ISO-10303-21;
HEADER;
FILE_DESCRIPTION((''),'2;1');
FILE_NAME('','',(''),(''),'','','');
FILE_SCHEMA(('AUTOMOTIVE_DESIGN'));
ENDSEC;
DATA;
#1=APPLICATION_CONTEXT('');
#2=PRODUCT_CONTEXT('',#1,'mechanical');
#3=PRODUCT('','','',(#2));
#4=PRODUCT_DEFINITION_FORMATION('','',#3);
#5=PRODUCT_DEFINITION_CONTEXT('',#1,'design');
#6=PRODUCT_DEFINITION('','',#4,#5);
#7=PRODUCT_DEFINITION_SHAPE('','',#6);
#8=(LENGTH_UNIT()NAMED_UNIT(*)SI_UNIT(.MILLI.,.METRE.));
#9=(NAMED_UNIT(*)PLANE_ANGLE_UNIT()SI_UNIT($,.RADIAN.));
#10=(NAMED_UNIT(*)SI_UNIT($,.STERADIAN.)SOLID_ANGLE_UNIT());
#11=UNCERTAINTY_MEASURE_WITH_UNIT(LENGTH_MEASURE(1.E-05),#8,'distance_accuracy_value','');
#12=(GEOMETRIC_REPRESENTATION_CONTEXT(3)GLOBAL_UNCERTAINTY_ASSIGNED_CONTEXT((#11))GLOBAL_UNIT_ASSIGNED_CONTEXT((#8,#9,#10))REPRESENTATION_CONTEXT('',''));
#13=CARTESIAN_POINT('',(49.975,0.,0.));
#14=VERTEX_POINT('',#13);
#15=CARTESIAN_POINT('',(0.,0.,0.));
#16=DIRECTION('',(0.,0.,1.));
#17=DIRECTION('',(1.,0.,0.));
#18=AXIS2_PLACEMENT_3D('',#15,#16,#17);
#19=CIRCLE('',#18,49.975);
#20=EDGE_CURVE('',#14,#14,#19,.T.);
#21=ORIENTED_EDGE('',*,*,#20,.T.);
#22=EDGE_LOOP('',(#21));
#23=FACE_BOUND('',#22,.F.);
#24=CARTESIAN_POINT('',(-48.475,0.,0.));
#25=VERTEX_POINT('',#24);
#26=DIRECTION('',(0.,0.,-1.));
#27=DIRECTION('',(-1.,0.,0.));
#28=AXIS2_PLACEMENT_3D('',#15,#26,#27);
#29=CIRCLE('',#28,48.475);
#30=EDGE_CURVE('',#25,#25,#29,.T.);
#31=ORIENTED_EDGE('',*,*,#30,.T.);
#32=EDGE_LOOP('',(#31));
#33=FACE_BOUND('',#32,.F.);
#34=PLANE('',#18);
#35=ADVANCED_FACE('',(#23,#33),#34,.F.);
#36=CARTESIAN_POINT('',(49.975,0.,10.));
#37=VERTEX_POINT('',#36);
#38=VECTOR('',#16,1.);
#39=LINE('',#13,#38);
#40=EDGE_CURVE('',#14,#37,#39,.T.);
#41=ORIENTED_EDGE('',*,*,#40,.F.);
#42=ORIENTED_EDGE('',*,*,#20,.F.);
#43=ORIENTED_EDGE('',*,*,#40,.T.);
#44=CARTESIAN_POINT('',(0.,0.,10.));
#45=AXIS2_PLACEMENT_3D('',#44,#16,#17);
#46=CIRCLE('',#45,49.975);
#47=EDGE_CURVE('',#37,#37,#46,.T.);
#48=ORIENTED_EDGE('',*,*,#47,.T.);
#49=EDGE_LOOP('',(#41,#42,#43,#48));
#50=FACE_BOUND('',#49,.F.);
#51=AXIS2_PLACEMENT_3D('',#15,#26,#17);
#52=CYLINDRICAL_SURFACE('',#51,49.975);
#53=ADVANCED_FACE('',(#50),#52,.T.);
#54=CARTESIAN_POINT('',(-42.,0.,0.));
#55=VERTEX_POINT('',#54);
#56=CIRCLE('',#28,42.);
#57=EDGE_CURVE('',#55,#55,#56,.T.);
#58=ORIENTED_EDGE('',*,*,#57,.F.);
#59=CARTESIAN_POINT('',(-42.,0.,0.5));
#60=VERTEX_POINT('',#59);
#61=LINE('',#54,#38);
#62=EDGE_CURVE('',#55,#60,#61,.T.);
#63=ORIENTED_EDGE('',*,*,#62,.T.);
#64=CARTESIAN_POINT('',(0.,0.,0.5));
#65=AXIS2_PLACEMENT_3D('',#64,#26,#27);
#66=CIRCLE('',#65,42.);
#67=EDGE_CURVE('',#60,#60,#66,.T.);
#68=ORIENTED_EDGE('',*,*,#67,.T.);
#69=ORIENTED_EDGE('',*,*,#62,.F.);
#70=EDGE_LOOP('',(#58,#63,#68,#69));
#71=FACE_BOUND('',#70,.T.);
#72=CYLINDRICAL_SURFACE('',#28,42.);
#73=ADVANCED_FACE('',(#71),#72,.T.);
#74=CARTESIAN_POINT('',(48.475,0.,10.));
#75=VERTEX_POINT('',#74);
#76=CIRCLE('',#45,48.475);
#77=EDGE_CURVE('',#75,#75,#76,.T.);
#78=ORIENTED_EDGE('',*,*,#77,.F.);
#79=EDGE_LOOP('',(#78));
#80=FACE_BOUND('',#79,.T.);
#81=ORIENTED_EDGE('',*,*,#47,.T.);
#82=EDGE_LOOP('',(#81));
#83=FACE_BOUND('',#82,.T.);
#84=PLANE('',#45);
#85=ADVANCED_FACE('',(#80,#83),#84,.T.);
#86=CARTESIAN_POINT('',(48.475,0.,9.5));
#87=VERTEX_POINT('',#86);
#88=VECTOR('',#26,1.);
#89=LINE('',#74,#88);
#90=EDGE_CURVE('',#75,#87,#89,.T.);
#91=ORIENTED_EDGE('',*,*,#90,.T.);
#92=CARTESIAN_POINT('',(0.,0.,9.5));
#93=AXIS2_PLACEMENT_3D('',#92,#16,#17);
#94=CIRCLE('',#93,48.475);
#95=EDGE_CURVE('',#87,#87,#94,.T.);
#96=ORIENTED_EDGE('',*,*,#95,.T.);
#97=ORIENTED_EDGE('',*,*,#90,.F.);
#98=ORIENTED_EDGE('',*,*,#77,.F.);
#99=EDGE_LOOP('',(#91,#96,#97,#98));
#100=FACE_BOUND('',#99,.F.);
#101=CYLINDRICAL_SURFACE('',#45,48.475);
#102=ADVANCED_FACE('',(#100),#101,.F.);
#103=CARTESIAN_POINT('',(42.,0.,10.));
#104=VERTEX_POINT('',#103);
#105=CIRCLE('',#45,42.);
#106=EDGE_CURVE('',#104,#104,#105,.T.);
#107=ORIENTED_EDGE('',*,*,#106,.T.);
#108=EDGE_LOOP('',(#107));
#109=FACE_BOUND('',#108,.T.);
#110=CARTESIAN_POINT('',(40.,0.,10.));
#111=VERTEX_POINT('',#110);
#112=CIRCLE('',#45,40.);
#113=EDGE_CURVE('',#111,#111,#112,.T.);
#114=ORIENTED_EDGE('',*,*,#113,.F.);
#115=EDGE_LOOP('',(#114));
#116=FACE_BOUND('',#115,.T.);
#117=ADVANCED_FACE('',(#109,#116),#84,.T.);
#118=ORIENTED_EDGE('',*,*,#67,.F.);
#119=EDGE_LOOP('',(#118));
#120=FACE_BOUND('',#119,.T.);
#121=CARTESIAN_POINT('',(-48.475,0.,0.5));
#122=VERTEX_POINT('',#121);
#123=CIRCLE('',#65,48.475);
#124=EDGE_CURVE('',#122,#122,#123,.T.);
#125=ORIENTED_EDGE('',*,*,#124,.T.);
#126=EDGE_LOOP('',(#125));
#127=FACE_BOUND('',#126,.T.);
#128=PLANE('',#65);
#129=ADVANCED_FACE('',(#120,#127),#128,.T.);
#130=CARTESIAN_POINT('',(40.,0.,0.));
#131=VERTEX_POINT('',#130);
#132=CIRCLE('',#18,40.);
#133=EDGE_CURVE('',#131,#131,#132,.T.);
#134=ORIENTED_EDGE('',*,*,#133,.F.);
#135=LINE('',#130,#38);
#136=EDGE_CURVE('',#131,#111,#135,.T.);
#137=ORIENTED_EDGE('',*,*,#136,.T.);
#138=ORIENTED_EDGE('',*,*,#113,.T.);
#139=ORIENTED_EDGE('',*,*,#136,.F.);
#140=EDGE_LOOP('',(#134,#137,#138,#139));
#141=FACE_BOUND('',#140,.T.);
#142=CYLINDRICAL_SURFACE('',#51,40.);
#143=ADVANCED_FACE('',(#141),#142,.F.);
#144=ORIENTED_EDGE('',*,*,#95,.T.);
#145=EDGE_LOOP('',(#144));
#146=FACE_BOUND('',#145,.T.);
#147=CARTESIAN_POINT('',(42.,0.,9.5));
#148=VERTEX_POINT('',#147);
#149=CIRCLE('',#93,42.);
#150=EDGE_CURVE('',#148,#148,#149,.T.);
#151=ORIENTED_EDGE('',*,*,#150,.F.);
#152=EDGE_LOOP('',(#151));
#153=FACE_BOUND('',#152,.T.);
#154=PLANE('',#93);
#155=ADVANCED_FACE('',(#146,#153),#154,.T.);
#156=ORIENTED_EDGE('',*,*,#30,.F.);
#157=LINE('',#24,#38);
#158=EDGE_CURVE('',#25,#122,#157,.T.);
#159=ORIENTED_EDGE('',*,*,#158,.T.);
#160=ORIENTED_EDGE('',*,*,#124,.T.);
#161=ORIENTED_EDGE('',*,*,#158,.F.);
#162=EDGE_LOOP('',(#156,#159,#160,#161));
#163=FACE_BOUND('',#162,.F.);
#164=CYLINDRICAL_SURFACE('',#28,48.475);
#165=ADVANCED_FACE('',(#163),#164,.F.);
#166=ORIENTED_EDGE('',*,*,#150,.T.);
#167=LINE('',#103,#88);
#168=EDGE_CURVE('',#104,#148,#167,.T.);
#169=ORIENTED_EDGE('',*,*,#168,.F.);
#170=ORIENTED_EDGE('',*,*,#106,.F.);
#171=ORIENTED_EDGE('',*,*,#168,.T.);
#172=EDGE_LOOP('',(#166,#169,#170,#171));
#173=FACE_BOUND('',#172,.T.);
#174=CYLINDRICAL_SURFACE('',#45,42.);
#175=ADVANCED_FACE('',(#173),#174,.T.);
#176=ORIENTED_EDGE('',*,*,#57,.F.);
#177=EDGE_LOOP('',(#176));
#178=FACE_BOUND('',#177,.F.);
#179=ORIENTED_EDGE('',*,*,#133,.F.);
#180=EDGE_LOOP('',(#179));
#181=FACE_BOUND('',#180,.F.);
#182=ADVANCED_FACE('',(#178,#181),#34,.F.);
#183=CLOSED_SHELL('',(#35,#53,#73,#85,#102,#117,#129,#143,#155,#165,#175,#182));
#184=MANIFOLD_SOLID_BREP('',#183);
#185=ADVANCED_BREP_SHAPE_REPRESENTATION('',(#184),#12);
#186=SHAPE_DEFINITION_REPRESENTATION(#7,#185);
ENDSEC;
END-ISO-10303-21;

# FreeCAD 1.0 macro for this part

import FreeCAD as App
import Part
import Sketcher

V = App.Vector
Q = App.Units.Quantity

doc = App.newDocument("Part")
params = doc.addObject("Spreadsheet::Sheet", "Params")
for row, (alias, value) in enumerate([
    ("sketch1_diameter", "80 mm"),
    ("sketch1_diameter2", "99.95 mm"),
    ("pad1_length", "10 mm"),
    ("sketch2_diameter", "84 mm"),
    ("sketch2_diameter2", "96.95 mm"),
    ("pocket1_length", "0.5 mm"),
    ("sketch3_diameter", "84 mm"),
    ("sketch3_diameter2", "96.95 mm"),
    ("pocket2_length", "0.5 mm"),
], start=1):
    params.set(f"A{row}", alias)
    params.set(f"B{row}", "=" + value)
    params.setAlias(f"B{row}", alias)

body = doc.addObject("PartDesign::Body", "Body")

sketch1 = doc.addObject("Sketcher::SketchObject", "Sketch")
body.addObject(sketch1)
sketch1.AttachmentSupport = (doc.XY_Plane, [""])
sketch1.MapMode = "FlatFace"
sketch1.addGeometry([
    Part.Circle(V(0, 0, 0), V(0, 0, 1), 50),
    Part.Circle(V(0, 0, 0), V(0, 0, 1), 40),
], False)
sketch1.addConstraint([
    Sketcher.Constraint("Coincident", 0, 3, -1, 1),
    Sketcher.Constraint("Coincident", 1, 3, -1, 1),
    Sketcher.Constraint("Diameter", 1, Q("80 mm")),
    Sketcher.Constraint("Diameter", 0, Q("99.95 mm")),
])
sketch1.setExpression("Constraints[2]", "Params.sketch1_diameter")
sketch1.setExpression("Constraints[3]", "Params.sketch1_diameter2")
pad1 = doc.addObject("PartDesign::Pad", "Pad")
body.addObject(pad1)
pad1.Profile = sketch1
pad1.setExpression("Length", "Params.pad1_length")

sketch2 = doc.addObject("Sketcher::SketchObject", "Sketch001")
body.addObject(sketch2)
sketch2.AttachmentSupport = (doc.XY_Plane, [""])
sketch2.MapMode = "FlatFace"
sketch2.AttachmentOffset = App.Placement(V(0, 0, 10), App.Rotation())
sketch2.addGeometry([
    Part.Circle(V(0, 0, 0), V(0, 0, 1), 48),
    Part.Circle(V(0, 0, 0), V(0, 0, 1), 42),
], False)
sketch2.addConstraint([
    Sketcher.Constraint("Coincident", 0, 3, -1, 1),
    Sketcher.Constraint("Coincident", 1, 3, -1, 1),
    Sketcher.Constraint("Diameter", 1, Q("84 mm")),
    Sketcher.Constraint("Diameter", 0, Q("96.95 mm")),
])
sketch2.setExpression("Constraints[2]", "Params.sketch2_diameter")
sketch2.setExpression("Constraints[3]", "Params.sketch2_diameter2")
pocket1 = doc.addObject("PartDesign::Pocket", "Pocket")
body.addObject(pocket1)
pocket1.Profile = sketch2
pocket1.setExpression("Length", "Params.pocket1_length")

sketch3 = doc.addObject("Sketcher::SketchObject", "Sketch002")
body.addObject(sketch3)
sketch3.AttachmentSupport = (doc.XY_Plane, [""])
sketch3.MapMode = "FlatFace"
sketch3.addGeometry([
    Part.Circle(V(0, 0, 0), V(0, 0, 1), 48),
    Part.Circle(V(0, 0, 0), V(0, 0, 1), 42),
], False)
sketch3.addConstraint([
    Sketcher.Constraint("Coincident", 0, 3, -1, 1),
    Sketcher.Constraint("Coincident", 1, 3, -1, 1),
    Sketcher.Constraint("Diameter", 1, Q("84 mm")),
    Sketcher.Constraint("Diameter", 0, Q("96.95 mm")),
])
sketch3.setExpression("Constraints[2]", "Params.sketch3_diameter")
sketch3.setExpression("Constraints[3]", "Params.sketch3_diameter2")
pocket2 = doc.addObject("PartDesign::Pocket", "Pocket001")
body.addObject(pocket2)
pocket2.Profile = sketch3
pocket2.setExpression("Length", "Params.pocket2_length")
pocket2.Reversed = True

doc.recompute()
